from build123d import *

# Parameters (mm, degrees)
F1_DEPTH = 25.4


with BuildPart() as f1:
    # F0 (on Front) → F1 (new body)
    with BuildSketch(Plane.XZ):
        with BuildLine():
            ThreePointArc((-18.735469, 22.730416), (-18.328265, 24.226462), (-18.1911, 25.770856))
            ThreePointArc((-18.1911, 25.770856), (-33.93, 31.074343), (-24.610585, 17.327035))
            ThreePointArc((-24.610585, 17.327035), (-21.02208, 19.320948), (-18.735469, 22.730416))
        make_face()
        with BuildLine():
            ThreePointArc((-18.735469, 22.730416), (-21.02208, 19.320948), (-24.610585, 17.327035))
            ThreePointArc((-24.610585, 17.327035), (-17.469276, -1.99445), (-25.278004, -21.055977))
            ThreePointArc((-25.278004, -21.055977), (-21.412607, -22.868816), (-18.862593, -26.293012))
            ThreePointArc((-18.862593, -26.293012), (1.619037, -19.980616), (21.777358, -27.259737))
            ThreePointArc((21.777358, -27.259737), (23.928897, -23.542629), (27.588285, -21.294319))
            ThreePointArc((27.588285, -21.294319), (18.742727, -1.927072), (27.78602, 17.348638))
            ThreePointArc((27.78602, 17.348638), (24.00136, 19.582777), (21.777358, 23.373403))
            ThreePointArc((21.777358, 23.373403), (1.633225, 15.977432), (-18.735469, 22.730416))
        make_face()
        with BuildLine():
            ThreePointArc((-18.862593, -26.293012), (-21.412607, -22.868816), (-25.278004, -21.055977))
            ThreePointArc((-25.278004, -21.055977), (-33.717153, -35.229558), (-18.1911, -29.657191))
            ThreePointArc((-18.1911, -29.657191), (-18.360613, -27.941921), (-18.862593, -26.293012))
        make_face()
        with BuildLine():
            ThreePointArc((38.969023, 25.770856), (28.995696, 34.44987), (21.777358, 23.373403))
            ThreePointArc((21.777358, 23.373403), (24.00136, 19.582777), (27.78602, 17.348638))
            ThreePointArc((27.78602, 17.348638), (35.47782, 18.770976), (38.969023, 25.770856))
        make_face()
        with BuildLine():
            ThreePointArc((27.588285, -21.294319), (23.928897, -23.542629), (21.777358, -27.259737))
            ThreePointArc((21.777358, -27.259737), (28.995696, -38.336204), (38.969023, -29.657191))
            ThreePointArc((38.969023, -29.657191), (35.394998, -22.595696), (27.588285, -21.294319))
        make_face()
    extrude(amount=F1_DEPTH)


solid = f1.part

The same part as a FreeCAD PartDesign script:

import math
import FreeCAD as App
import Part
import Sketcher
from FreeCAD import Vector
Q = App.Units.Quantity

doc = App.newDocument("Part")
params = doc.addObject("Spreadsheet::Sheet", "Params")
for row, (alias, value) in enumerate([
    ("sketch1_radius", "0.345 in"),
    ("pad1_length", "1 in"),
], start=1):
    params.set(f"A{row}", alias)
    params.set(f"B{row}", "=" + value)
    params.setAlias(f"B{row}", alias)

body = doc.addObject("PartDesign::Body", "Body")

# Sketch on XZ plane
sketch1 = body.newObject("Sketcher::SketchObject", "Sketch")
sketch1.AttachmentSupport = (doc.getObject("XZ_Plane"), [""])
sketch1.MapMode = "FlatFace"
sketch1.addGeometry([
    Part.ArcOfCircle(Part.Circle(Vector(-27, 25.8, 0), Vector(0, 0, 1), 8.8), math.radians(-20), math.radians(0)),  # 0
    Part.ArcOfCircle(Part.Circle(Vector(-27, 25.8, 0), Vector(0, 0, 1), 8.8), math.radians(0), math.radians(286)),  # 1
    Part.ArcOfCircle(Part.Circle(Vector(-45.8, -1.5, 0), Vector(0, 0, 1), 28.4), math.radians(-44), math.radians(42)),  # 2
    Part.ArcOfCircle(Part.Circle(Vector(-27, -29.7, 0), Vector(0, 0, 1), 8.8), math.radians(79), math.radians(360)),  # 3
    Part.ArcOfCircle(Part.Circle(Vector(-27, -29.7, 0), Vector(0, 0, 1), 8.8), math.radians(0), math.radians(23)),  # 4
    Part.ArcOfCircle(Part.Circle(Vector(0.8, -53.8, 0), Vector(0, 0, 1), 33.8), math.radians(52), math.radians(126)),  # 5
    Part.ArcOfCircle(Part.Circle(Vector(30.2, -29.7, 0), Vector(0, 0, 1), 8.8), math.radians(164), math.radians(360)),  # 6
    Part.ArcOfCircle(Part.Circle(Vector(30.2, -29.7, 0), Vector(0, 0, 1), 8.8), math.radians(0), math.radians(107)),  # 7
    Part.ArcOfCircle(Part.Circle(Vector(44.1, -2.1, 0), Vector(0, 0, 1), 25.3), math.radians(130), math.radians(229)),  # 8
    Part.ArcOfCircle(Part.Circle(Vector(30.2, 25.8, 0), Vector(0, 0, 1), 8.8), math.radians(-106), math.radians(0)),  # 9
    Part.ArcOfCircle(Part.Circle(Vector(30.2, 25.8, 0), Vector(0, 0, 1), 8.8), math.radians(0), math.radians(196)),  # 10
    Part.ArcOfCircle(Part.Circle(Vector(1.1, 48.5, 0), Vector(0, 0, 1), 32.5), math.radians(-128), math.radians(-51)),  # 11
], False)
sketch1.addConstraint([
    Sketcher.Constraint("Tangent", 0, 2, 1, 1),
    Sketcher.Constraint("Coincident", 1, 2, 2, 2),
    Sketcher.Constraint("Coincident", 2, 1, 3, 1),
    Sketcher.Constraint("Tangent", 3, 2, 4, 1),
    Sketcher.Constraint("Coincident", 4, 2, 5, 2),
    Sketcher.Constraint("Coincident", 5, 1, 6, 1),
    Sketcher.Constraint("Tangent", 6, 2, 7, 1),
    Sketcher.Constraint("Coincident", 7, 2, 8, 2),
    Sketcher.Constraint("Coincident", 8, 1, 9, 1),
    Sketcher.Constraint("Tangent", 9, 2, 10, 1),
    Sketcher.Constraint("Coincident", 10, 2, 11, 2),
    Sketcher.Constraint("Coincident", 11, 1, 0, 1),
    Sketcher.Constraint("Equal", 1, 3),
    Sketcher.Constraint("Equal", 3, 6),
    Sketcher.Constraint("Equal", 6, 7),
    Sketcher.Constraint("Equal", 7, 9),
    Sketcher.Constraint("Equal", 9, 10),
    Sketcher.Constraint("Horizontal", 3, 3, 6, 3),
    Sketcher.Constraint("Horizontal", 1, 3, 9, 3),
    Sketcher.Constraint("Horizontal", 10, 3, 0, 2),
    Sketcher.Constraint("Horizontal", 7, 3, 3, 2),
    Sketcher.Constraint("Horizontal", 3, 2, 6, 2),
    Sketcher.Constraint("Horizontal", 0, 2, 9, 2),
    Sketcher.Constraint("Vertical", 1, 3, 3, 3),
    Sketcher.Constraint("Vertical", 7, 3, 9, 3),
    Sketcher.Constraint("Vertical", 5, 1, 10, 2),
    Sketcher.Constraint("Radius", 1, Q("0.345 in")),
    Sketcher.Constraint("Radius", 2, Q("28.378119 mm")),
    Sketcher.Constraint("Radius", 5, Q("33.786781 mm")),
    Sketcher.Constraint("Radius", 11, Q("32.54152 mm")),
    Sketcher.Constraint("Radius", 0, Q("8.762956 mm")),
    Sketcher.Constraint("Radius", 4, Q("8.763022 mm")),
    Sketcher.Constraint("Radius", 8, Q("25.341382 mm")),
    Sketcher.Constraint("DistanceX", 1, 3, -1, 1, Q("26.9541 mm")),
    Sketcher.Constraint("DistanceY", 5, 3, 8, 3, Q("51.7011 mm")),
    Sketcher.Constraint("DistanceX", 4, 3, 8, 3, Q("71.0379 mm")),
    Sketcher.Constraint("DistanceY", 8, 3, 9, 3, Q("27.827598 mm")),
    Sketcher.Constraint("DistanceY", 1, 3, 11, 3, Q("22.743999 mm")),
    Sketcher.Constraint("DistanceX", 2, 3, 2, 1, Q("20.565102 mm")),
    Sketcher.Constraint("DistanceX", 5, 3, 5, 1, Q("20.961799 mm")),
    Sketcher.Constraint("DistanceY", 3, 3, -1, 1, Q("29.65719 mm")),
    Sketcher.Constraint("DistanceX", -1, 1, 5, 3, Q("0.815559 mm")),
    Sketcher.Constraint("DistanceY", 5, 3, -1, 1, Q("53.757842 mm")),
    Sketcher.Constraint("DistanceY", 2, 3, 1, 3, Q("27.27193 mm")),
])
sketch1.setExpression("Constraints[26]", "Params.sketch1_radius")
pad1 = body.newObject("PartDesign::Pad", "Pad")
pad1.Profile = sketch1
pad1.setExpression("Length", "Params.pad1_length")

doc.recompute()
